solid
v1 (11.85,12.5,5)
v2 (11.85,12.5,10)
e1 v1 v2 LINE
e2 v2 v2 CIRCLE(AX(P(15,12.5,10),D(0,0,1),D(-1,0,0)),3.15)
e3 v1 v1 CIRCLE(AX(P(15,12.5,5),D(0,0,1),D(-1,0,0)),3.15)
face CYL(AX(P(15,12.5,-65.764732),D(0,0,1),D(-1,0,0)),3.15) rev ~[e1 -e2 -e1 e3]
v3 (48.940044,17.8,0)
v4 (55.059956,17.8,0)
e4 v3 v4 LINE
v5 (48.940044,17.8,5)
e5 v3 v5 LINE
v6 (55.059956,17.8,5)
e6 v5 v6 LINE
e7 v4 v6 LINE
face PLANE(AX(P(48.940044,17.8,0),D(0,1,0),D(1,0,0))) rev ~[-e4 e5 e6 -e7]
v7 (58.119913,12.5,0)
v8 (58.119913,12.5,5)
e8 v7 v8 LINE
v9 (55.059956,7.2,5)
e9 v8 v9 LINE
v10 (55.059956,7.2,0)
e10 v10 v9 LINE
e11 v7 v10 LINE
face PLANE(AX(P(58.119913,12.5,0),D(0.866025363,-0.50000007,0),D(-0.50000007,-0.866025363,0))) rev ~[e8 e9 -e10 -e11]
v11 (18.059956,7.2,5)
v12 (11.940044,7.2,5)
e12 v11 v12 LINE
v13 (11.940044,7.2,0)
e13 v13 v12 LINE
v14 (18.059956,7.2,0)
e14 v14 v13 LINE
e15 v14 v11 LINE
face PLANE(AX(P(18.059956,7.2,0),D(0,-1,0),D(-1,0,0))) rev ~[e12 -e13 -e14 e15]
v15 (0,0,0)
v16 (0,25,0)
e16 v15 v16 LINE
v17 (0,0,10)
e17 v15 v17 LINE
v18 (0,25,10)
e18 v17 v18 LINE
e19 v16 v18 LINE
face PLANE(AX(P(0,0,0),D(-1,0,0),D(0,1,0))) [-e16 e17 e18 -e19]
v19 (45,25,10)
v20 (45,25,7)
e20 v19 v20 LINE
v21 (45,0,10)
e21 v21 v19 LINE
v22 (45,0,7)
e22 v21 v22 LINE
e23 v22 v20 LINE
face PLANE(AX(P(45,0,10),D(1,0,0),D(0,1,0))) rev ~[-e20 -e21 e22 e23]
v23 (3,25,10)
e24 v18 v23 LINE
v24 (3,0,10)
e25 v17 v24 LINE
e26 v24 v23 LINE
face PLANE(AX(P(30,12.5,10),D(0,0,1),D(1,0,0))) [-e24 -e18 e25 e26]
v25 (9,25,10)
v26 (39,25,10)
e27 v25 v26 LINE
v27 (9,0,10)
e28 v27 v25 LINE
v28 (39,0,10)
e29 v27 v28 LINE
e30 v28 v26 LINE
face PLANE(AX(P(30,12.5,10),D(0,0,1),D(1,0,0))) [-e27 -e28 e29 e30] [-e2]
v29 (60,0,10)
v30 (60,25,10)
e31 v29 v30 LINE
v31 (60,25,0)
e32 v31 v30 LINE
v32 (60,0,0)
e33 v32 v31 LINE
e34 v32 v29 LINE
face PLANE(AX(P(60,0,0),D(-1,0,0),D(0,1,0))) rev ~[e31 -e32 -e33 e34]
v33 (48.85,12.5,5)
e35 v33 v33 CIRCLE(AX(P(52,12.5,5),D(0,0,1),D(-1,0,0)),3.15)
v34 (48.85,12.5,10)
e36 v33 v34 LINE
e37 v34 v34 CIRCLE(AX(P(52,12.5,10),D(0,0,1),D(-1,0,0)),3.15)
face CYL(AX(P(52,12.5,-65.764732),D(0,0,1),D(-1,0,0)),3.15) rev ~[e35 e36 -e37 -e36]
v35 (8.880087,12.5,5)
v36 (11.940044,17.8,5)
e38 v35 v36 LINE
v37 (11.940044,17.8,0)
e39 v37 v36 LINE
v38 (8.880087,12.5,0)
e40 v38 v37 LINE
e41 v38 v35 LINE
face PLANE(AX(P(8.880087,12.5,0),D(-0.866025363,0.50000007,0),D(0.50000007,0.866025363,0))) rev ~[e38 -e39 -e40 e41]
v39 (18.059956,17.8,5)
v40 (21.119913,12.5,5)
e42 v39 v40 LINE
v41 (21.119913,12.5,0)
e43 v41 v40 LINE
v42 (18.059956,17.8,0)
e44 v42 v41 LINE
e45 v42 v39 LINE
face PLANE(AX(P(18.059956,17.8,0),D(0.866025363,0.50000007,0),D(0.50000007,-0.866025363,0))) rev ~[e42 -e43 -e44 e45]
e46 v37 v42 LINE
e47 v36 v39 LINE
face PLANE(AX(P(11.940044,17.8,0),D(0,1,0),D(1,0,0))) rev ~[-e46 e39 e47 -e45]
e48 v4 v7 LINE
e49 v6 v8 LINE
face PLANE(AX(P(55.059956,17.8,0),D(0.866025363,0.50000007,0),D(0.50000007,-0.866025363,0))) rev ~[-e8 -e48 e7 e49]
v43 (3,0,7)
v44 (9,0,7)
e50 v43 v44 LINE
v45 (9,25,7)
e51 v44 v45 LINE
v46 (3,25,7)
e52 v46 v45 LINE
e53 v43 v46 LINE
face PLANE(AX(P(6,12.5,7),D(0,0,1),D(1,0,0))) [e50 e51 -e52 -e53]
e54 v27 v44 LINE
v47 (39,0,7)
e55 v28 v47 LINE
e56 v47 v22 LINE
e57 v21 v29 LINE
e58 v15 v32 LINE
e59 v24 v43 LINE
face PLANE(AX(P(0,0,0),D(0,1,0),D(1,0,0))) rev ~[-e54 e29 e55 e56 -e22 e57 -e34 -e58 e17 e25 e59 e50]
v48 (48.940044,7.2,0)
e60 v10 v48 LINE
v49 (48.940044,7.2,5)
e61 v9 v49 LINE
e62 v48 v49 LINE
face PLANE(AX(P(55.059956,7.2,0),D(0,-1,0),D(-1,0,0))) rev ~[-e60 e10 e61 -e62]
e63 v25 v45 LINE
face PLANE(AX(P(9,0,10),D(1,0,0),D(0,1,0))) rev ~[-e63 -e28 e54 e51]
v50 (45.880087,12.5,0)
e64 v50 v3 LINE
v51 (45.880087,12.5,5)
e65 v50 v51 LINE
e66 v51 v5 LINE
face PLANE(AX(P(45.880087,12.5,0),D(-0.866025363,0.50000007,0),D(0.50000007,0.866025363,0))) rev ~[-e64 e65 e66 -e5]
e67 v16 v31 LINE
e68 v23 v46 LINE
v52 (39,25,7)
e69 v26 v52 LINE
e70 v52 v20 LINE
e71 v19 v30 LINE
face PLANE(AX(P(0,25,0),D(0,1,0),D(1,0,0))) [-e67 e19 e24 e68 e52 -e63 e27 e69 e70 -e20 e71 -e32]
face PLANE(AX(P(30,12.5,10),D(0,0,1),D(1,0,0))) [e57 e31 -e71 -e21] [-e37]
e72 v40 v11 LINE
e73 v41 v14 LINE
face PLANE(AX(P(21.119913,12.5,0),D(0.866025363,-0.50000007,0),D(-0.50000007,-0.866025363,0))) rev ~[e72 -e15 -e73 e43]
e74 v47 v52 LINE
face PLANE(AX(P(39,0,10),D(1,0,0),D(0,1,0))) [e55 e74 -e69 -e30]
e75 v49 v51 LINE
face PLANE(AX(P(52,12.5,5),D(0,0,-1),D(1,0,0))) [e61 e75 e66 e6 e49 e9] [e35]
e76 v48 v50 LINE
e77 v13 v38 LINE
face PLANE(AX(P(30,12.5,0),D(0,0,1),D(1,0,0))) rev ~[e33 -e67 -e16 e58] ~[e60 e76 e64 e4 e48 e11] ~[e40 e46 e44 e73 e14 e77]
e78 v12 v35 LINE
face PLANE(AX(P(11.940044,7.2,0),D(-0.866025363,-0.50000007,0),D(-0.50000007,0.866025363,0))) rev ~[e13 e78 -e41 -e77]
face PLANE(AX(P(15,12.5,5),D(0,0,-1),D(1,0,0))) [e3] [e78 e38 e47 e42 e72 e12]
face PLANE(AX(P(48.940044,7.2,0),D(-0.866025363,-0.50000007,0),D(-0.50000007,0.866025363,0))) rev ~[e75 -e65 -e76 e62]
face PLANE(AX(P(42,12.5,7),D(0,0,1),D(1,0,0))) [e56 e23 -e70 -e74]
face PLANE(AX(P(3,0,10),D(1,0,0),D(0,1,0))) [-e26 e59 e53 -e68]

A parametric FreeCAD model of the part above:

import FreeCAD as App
import Part
import Sketcher
Q = App.Units.Quantity


def add_polygon(sketch, points):
    """Adds a closed chain of lines whose ends are joined by coincident constraints."""
    first, n = sketch.GeometryCount, len(points)
    for a, b in zip(points, points[1:] + points[:1]):
        sketch.addGeometry(Part.LineSegment(App.Vector(*a, 0), App.Vector(*b, 0)), False)
    for i in range(n):
        sketch.addConstraint(Sketcher.Constraint("Coincident", first + i, 2, first + (i + 1) % n, 1))

doc = App.newDocument("Part")
params = doc.addObject("Spreadsheet::Sheet", "Params")
for row, (alias, value) in enumerate([
    ("sketch1_width", "60 mm"),
    ("sketch1_height", "25 mm"),
    ("pad1_length", "10 mm"),
    ("sketch2_width", "6 mm"),
    ("sketch2_height", "25 mm"),
    ("pocket1_length", "3 mm"),
    ("sketch3_diameter", "6.3 mm"),
    ("hole_diameter", "6.3 mm"),
    ("pocket2_length", "5 mm"),
], start=1):
    params.set(f"A{row}", alias)
    params.set(f"B{row}", "=" + value)
    params.setAlias(f"B{row}", alias)

body = doc.addObject("PartDesign::Body", "Body")

# Sketch on XY plane
sketch1 = doc.addObject("Sketcher::SketchObject", "Sketch")
body.addObject(sketch1)
sketch1.AttachmentSupport = (doc.XY_Plane, [""])
sketch1.MapMode = "FlatFace"
add_polygon(sketch1, [(0, 25), (0, 0), (60, 0), (60, 25)])  # lines 0-3
sketch1.addConstraint([
    Sketcher.Constraint("Vertical", 0),
    Sketcher.Constraint("Horizontal", 1),
    Sketcher.Constraint("Vertical", 2),
    Sketcher.Constraint("Horizontal", 3),
    Sketcher.Constraint("Coincident", 0, 2, -1, 1),
    Sketcher.Constraint("DistanceX", 1, 1, 1, 2, 60.0),
    Sketcher.Constraint("DistanceY", 0, 2, 0, 1, 25.0),
])
sketch1.setExpression("Constraints[9]", "Params.sketch1_width")
sketch1.setExpression("Constraints[10]", "Params.sketch1_height")
pad1 = doc.addObject("PartDesign::Pad", "Pad")
body.addObject(pad1)
pad1.Profile = sketch1
pad1.setExpression("Length", "Params.pad1_length")

# Sketch on XY plane
sketch2 = doc.addObject("Sketcher::SketchObject", "Sketch001")
body.addObject(sketch2)
sketch2.AttachmentSupport = (doc.XY_Plane, [""])
sketch2.MapMode = "FlatFace"
sketch2.AttachmentOffset = App.Placement(App.Vector(0, 0, 10), App.Rotation())
add_polygon(sketch2, [(3, 25), (3, 0), (9, 0), (9, 25)])  # lines 0-3
add_polygon(sketch2, [(39, 25), (39, 0), (45, 0), (45, 25)])  # lines 4-7
sketch2.addConstraint([
    Sketcher.Constraint("Vertical", 0),
    Sketcher.Constraint("Horizontal", 1),
    Sketcher.Constraint("Vertical", 2),
    Sketcher.Constraint("Horizontal", 3),
    Sketcher.Constraint("Vertical", 4),
    Sketcher.Constraint("Horizontal", 5),
    Sketcher.Constraint("Vertical", 6),
    Sketcher.Constraint("Horizontal", 7),
    Sketcher.Constraint("PointOnObject", 0, 2, -1),
    Sketcher.Constraint("PointOnObject", 4, 2, -1),
    Sketcher.Constraint("Horizontal", 3, 2, 6, 2),
    Sketcher.Constraint("Equal", 3, 5),
    Sketcher.Constraint("DistanceX", 1, 1, 1, 2, 6.0),
    Sketcher.Constraint("DistanceY", 0, 2, 0, 1, 25.0),
    Sketcher.Constraint("DistanceX", -1, 1, 0, 2, 3.0),
    Sketcher.Constraint("DistanceX", -1, 1, 4, 2, 39.0),
])
sketch2.setExpression("Constraints[20]", "Params.sketch2_width")
sketch2.setExpression("Constraints[21]", "Params.sketch2_height")
pocket1 = doc.addObject("PartDesign::Pocket", "Pocket")
body.addObject(pocket1)
pocket1.Profile = sketch2
pocket1.setExpression("Length", "Params.pocket1_length")

# Sketch on XY plane
sketch3 = doc.addObject("Sketcher::SketchObject", "Sketch002")
body.addObject(sketch3)
sketch3.AttachmentSupport = (doc.XY_Plane, [""])
sketch3.MapMode = "FlatFace"
sketch3.addGeometry([
    Part.Circle(App.Vector(15, 12.5, 0), App.Vector(0, 0, 1), 3.1),
    Part.Circle(App.Vector(52, 12.5, 0), App.Vector(0, 0, 1), 3.1),
], False)
sketch3.addConstraint([
    Sketcher.Constraint("Equal", 0, 1),
    Sketcher.Constraint("Horizontal", 0, 3, 1, 3),
    Sketcher.Constraint("Diameter", 0, 6.3),
    Sketcher.Constraint("DistanceX", -1, 1, 0, 3, 15.0),
    Sketcher.Constraint("DistanceX", -1, 1, 1, 3, 52.0),
    Sketcher.Constraint("DistanceY", -1, 1, 0, 3, 12.5),
])
sketch3.setExpression("Constraints[2]", "Params.sketch3_diameter")
doc.recompute()
hole = doc.addObject("PartDesign::Hole", "Hole")
body.addObject(hole)
hole.Profile = sketch3
hole.ThreadType = "None"
hole.setExpression("Diameter", "Params.hole_diameter")
hole.DepthType = "ThroughAll"
hole.Reversed = True

# Sketch on XY plane
sketch4 = doc.addObject("Sketcher::SketchObject", "Sketch003")
body.addObject(sketch4)
sketch4.AttachmentSupport = (doc.XY_Plane, [""])
sketch4.MapMode = "FlatFace"
add_polygon(sketch4, [(21, 12), (18, 7), (12, 7), (9, 12), (12, 18), (18, 18)])  # lines 0-5
add_polygon(sketch4, [(46, 12), (49, 18), (55, 18), (58, 12), (55, 7), (49, 7)])  # lines 6-11
sketch4.addConstraint([
    Sketcher.Constraint("Horizontal", 1),
    Sketcher.Constraint("Horizontal", 4),
    Sketcher.Constraint("Horizontal", 7),
    Sketcher.Constraint("Horizontal", 10),
    Sketcher.Constraint("Parallel", 0, 3),
    Sketcher.Constraint("Parallel", 2, 5),
    Sketcher.Constraint("Parallel", 3, 6),
    Sketcher.Constraint("Parallel", 5, 8),
    Sketcher.Constraint("Parallel", 6, 9),
    Sketcher.Constraint("Parallel", 8, 11),
    Sketcher.Constraint("Horizontal", 2, 2, 5, 2),
    Sketcher.Constraint("Horizontal", 4, 2, 6, 2),
    Sketcher.Constraint("Horizontal", 5, 2, 8, 2),
    Sketcher.Constraint("Horizontal", 1, 2, 9, 2),
    Sketcher.Constraint("Horizontal", 8, 2, 11, 2),
    Sketcher.Constraint("Vertical", 1, 2, 3, 2),
    Sketcher.Constraint("Vertical", 0, 2, 4, 2),
    Sketcher.Constraint("Equal", 4, 7),
    Sketcher.Constraint("Angle", 0, Q("-120.000005 deg")),
    Sketcher.Constraint("DistanceX", 3, 2, 6, 2, 37.0),
    Sketcher.Constraint("DistanceY", -1, 1, 0, 2, 7.2),
    Sketcher.Constraint("DistanceY", -1, 1, 2, 2, 12.5),
    Sketcher.Constraint("DistanceX", 1, 2, 1, 1, 6.119912),
    Sketcher.Constraint("DistanceX", -1, 1, 0, 2, 18.059956),
])
pocket2 = doc.addObject("PartDesign::Pocket", "Pocket001")
body.addObject(pocket2)
pocket2.Profile = sketch4
pocket2.setExpression("Length", "Params.pocket2_length")
pocket2.Reversed = True

doc.recompute()
